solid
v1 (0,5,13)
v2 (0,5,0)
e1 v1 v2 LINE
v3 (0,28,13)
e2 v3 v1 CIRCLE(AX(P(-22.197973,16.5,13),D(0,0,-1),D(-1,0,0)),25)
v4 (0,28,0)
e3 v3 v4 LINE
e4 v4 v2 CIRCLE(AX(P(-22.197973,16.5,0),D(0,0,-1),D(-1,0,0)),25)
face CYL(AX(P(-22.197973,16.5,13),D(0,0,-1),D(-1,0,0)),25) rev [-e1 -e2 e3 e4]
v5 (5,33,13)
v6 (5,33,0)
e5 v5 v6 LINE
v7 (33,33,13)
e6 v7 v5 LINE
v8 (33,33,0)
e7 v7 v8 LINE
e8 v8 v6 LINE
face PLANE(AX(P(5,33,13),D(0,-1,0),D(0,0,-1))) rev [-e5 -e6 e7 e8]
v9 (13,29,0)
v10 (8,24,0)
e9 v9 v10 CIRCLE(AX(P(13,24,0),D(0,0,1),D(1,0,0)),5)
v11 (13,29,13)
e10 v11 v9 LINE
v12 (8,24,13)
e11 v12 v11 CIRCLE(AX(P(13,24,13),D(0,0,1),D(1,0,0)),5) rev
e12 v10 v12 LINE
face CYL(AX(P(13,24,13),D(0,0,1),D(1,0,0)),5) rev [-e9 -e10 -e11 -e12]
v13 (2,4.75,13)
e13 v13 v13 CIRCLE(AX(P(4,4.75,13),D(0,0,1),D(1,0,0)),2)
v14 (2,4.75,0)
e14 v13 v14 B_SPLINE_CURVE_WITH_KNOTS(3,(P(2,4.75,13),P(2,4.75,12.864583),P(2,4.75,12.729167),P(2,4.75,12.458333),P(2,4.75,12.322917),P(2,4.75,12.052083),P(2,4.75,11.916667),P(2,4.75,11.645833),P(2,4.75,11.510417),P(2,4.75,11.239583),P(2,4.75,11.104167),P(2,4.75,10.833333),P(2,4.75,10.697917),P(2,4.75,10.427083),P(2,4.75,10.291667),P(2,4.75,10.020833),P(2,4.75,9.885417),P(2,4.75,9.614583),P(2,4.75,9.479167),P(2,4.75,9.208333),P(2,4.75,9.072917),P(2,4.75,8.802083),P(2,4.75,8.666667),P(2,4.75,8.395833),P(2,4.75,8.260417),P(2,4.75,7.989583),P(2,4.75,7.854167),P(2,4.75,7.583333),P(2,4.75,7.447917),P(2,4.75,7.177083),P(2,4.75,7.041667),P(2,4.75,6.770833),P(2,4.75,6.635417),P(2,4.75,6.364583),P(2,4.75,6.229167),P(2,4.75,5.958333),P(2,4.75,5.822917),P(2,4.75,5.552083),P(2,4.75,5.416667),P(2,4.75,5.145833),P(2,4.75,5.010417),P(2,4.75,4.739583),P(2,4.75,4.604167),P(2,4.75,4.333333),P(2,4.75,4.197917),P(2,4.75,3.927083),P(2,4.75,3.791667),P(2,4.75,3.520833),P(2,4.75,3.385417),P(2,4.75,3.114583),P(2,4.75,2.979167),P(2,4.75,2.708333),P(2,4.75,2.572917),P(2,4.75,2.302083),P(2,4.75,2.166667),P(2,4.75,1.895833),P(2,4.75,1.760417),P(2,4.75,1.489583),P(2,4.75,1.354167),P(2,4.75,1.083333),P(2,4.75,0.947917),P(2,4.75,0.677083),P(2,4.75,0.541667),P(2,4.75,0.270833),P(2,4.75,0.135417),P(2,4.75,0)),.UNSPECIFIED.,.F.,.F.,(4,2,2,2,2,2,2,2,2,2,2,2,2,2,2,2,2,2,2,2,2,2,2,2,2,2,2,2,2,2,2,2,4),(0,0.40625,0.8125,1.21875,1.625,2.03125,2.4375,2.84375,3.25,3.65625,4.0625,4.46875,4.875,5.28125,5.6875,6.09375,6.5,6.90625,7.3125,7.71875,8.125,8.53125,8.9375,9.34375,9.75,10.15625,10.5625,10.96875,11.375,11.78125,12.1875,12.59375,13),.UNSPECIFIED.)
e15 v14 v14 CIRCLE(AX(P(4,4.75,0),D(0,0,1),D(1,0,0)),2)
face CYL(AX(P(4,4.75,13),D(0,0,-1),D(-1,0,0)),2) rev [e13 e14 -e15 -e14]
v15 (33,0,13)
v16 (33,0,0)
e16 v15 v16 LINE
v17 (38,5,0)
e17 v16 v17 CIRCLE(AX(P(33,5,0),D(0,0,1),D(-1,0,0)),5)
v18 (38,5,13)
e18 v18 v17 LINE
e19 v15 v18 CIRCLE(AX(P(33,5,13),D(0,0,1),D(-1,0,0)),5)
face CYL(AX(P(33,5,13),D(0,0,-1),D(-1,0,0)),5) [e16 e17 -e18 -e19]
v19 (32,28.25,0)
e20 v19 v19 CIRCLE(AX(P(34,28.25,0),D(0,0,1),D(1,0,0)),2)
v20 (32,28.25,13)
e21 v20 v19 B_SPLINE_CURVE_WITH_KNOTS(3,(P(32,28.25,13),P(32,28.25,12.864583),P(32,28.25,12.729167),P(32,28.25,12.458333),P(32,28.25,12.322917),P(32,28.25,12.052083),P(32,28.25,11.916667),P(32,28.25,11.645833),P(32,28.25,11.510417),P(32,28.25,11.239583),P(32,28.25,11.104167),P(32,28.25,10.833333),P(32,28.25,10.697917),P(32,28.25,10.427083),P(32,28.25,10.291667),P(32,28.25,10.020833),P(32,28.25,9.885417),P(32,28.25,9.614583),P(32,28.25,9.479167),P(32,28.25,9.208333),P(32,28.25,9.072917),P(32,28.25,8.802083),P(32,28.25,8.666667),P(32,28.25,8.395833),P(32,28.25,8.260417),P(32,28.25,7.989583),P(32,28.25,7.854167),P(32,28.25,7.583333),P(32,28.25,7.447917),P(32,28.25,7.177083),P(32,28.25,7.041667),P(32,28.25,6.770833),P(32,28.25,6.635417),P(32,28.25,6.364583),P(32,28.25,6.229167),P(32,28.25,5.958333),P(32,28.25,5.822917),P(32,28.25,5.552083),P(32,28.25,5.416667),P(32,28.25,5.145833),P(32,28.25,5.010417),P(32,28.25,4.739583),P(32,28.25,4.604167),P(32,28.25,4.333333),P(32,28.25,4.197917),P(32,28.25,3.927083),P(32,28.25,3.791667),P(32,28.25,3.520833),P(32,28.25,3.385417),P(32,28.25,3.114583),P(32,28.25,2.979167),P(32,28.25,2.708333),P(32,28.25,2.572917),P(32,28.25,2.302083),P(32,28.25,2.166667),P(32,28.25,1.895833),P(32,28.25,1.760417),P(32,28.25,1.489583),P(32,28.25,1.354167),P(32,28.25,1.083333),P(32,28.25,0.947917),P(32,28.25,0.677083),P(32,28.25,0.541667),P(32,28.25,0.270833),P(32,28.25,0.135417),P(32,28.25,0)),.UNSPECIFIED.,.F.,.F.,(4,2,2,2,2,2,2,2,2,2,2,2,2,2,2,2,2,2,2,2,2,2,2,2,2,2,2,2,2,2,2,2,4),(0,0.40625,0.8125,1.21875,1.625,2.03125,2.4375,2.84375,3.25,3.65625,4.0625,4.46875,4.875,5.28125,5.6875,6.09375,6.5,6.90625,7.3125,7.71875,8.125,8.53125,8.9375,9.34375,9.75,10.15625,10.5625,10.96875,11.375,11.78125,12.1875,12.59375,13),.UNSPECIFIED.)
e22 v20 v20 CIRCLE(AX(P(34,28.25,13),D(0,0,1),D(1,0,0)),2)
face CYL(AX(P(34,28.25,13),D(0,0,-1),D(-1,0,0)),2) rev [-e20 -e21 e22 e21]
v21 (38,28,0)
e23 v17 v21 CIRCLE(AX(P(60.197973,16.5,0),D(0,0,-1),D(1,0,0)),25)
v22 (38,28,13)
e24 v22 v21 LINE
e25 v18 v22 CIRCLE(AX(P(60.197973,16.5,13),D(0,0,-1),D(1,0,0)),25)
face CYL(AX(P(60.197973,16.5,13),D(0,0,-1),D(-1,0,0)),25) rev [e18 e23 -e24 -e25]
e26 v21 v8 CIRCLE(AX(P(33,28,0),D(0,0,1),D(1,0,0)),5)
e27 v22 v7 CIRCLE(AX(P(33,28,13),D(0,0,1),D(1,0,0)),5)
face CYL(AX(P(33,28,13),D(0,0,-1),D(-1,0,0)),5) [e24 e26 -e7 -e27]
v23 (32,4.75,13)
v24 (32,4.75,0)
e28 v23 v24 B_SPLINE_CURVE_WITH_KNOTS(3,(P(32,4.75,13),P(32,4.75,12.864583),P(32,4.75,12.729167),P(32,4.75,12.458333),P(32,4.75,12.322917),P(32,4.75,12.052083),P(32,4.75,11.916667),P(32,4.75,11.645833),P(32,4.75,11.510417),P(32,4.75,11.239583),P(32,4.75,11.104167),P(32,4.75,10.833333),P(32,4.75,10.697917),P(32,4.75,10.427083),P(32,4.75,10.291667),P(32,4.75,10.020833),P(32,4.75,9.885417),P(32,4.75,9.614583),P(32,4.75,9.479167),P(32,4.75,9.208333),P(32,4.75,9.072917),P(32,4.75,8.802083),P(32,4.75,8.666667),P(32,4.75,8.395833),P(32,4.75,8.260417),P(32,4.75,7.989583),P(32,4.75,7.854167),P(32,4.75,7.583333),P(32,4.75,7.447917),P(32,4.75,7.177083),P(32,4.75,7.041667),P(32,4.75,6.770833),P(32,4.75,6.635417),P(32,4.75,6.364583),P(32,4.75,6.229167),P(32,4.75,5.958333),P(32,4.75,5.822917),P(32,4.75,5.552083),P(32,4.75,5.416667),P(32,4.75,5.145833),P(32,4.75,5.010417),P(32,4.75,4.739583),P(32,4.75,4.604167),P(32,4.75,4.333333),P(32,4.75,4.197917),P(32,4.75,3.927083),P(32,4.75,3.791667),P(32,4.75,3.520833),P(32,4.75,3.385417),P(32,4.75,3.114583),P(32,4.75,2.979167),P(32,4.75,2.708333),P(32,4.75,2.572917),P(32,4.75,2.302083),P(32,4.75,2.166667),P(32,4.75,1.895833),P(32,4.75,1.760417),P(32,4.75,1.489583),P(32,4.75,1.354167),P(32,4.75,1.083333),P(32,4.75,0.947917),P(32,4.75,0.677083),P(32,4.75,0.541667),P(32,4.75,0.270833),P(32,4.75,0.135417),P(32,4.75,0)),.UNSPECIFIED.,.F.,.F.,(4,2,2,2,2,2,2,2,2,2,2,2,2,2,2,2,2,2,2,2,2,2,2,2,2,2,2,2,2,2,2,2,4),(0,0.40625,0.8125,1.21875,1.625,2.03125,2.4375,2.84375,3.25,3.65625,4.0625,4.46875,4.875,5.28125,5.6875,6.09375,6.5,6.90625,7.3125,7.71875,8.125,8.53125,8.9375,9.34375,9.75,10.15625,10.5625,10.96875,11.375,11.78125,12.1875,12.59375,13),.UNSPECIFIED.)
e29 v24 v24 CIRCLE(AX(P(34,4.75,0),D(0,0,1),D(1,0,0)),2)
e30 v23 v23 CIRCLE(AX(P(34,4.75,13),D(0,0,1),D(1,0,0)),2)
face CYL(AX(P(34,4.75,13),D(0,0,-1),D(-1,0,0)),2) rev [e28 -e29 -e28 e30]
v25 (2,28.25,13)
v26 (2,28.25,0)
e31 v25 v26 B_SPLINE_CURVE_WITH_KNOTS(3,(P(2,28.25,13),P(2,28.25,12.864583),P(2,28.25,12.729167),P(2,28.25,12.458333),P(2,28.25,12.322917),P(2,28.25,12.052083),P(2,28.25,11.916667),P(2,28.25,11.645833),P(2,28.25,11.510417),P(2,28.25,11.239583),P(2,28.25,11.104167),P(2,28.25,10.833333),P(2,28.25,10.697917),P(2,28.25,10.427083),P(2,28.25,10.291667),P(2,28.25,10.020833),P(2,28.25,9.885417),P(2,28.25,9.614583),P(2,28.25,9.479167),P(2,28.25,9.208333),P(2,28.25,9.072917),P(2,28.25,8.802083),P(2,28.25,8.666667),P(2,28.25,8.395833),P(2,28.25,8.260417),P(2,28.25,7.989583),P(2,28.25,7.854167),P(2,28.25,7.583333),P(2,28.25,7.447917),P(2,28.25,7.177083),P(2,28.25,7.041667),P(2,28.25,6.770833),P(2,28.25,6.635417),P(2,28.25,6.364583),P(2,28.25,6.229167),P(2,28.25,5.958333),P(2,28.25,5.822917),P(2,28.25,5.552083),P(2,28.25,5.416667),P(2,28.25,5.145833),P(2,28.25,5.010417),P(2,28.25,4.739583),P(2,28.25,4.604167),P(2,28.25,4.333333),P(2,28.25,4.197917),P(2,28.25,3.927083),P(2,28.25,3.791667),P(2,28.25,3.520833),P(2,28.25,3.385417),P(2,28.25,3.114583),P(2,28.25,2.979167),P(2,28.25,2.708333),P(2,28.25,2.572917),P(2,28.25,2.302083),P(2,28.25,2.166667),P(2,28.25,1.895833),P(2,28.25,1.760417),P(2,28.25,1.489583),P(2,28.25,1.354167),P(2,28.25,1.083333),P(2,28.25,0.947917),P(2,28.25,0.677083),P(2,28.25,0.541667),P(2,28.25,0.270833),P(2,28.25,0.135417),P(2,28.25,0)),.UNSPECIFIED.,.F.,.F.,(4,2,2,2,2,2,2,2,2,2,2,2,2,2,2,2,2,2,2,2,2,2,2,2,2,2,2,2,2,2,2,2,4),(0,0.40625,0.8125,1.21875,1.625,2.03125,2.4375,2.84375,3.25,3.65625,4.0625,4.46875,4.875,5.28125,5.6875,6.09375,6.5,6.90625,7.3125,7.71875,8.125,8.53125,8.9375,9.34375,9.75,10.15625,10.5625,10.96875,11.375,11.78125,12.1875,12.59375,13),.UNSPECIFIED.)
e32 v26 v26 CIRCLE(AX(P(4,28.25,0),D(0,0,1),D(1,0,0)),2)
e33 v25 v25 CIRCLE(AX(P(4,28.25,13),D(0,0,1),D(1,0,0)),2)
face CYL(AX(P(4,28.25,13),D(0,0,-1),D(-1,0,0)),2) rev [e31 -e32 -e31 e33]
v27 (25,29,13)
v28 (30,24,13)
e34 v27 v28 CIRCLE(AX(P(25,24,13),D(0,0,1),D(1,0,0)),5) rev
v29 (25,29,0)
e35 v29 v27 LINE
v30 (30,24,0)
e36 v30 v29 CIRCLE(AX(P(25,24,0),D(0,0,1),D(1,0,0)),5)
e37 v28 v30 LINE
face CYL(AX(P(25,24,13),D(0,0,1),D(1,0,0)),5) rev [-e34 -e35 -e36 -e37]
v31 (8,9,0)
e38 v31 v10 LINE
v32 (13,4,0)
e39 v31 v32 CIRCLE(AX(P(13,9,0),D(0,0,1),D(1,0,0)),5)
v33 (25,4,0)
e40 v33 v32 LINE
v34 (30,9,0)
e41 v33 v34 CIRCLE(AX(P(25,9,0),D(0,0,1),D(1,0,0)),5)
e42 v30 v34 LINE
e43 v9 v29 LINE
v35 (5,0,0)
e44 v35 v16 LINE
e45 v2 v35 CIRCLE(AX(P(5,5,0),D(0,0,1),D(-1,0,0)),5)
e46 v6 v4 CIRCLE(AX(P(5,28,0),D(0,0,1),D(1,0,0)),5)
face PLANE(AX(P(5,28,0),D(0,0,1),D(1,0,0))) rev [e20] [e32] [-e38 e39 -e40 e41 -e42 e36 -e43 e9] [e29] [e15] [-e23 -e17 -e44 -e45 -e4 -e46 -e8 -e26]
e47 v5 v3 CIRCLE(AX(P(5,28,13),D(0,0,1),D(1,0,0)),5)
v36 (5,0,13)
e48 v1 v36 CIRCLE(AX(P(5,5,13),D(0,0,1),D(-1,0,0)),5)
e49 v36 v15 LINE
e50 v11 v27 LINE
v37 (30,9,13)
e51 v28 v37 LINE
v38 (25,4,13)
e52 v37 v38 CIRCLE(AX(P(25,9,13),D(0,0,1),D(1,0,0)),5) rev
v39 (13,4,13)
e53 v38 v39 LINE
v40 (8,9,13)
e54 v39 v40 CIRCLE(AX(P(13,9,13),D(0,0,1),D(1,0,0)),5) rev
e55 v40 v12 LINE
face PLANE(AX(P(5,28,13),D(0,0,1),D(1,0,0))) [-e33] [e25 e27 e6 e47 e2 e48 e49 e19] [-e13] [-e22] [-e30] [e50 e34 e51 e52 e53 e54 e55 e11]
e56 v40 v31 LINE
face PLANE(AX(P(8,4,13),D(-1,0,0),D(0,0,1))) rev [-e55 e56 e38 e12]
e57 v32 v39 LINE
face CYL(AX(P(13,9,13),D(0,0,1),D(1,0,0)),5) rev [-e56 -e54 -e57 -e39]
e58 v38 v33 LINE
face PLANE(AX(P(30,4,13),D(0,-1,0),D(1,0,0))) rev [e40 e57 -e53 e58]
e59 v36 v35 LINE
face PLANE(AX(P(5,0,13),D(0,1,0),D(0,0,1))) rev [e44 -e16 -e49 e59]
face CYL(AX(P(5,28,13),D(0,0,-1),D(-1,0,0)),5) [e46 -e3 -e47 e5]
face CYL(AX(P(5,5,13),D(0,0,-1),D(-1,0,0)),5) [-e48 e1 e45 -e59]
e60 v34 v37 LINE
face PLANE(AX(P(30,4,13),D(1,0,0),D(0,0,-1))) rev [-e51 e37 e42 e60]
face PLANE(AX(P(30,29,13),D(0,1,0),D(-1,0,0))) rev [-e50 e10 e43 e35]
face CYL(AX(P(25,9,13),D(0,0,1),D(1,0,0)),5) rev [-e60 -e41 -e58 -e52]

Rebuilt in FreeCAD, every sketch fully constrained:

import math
import FreeCAD as App
import Part
import Sketcher
from FreeCAD import Vector


def edges_at(feature, points):
    """Names of the edges that pass closest to the given points."""
    edges = feature.Shape.Edges
    near = lambda p: min(range(len(edges)), key=lambda i: edges[i].distToShape(Part.Vertex(*p))[0])
    return sorted({f"Edge{near(p) + 1}" for p in points})

doc = App.newDocument("Part")
body = doc.addObject("PartDesign::Body", "Body")

# Sketch on XY plane
sketch1 = doc.addObject("Sketcher::SketchObject", "Sketch")
body.addObject(sketch1)
sketch1.AttachmentSupport = (doc.XY_Plane, [""])
sketch1.MapMode = "FlatFace"
sketch1.addGeometry([
    Part.LineSegment(Vector(5, 0, 0), Vector(33, 0, 0)),  # 0
    Part.ArcOfCircle(Part.Circle(Vector(33, 5, 0), Vector(0, 0, 1), 5), math.radians(-90), math.radians(0)),  # 1
    Part.ArcOfCircle(Part.Circle(Vector(60.2, 16.5, 0), Vector(0, 0, 1), 25), math.radians(153), math.radians(207)),  # 2
    Part.ArcOfCircle(Part.Circle(Vector(33, 28, 0), Vector(0, 0, 1), 5), math.radians(0), math.radians(90)),  # 3
    Part.LineSegment(Vector(33, 33, 0), Vector(5, 33, 0)),  # 4
    Part.ArcOfCircle(Part.Circle(Vector(5, 28, 0), Vector(0, 0, 1), 5), math.radians(90), math.radians(180)),  # 5
    Part.ArcOfCircle(Part.Circle(Vector(-22.2, 16.5, 0), Vector(0, 0, 1), 25), math.radians(-27), math.radians(27)),  # 6
    Part.ArcOfCircle(Part.Circle(Vector(5, 5, 0), Vector(0, 0, 1), 5), math.radians(180), math.radians(270)),  # 7
    Part.Circle(Vector(4, 4.8, 0), Vector(0, 0, 1), 2),  # 8
    Part.Circle(Vector(34, 4.8, 0), Vector(0, 0, 1), 2),  # 9
    Part.Circle(Vector(4, 28.2, 0), Vector(0, 0, 1), 2),  # 10
    Part.Circle(Vector(34, 28.2, 0), Vector(0, 0, 1), 2),  # 11
], False)
sketch1.addConstraint([
    Sketcher.Constraint("Tangent", 0, 2, 1, 1),
    Sketcher.Constraint("Coincident", 1, 2, 2, 2),
    Sketcher.Constraint("Coincident", 2, 1, 3, 1),
    Sketcher.Constraint("Tangent", 3, 2, 4, 1),
    Sketcher.Constraint("Tangent", 4, 2, 5, 1),
    Sketcher.Constraint("Coincident", 5, 2, 6, 2),
    Sketcher.Constraint("Coincident", 6, 1, 7, 1),
    Sketcher.Constraint("Tangent", 7, 2, 0, 1),
    Sketcher.Constraint("Horizontal", 0),
    Sketcher.Constraint("Horizontal", 4),
    Sketcher.Constraint("Equal", 1, 3),
    Sketcher.Constraint("Equal", 3, 5),
    Sketcher.Constraint("Equal", 2, 6),
    Sketcher.Constraint("Equal", 5, 7),
    Sketcher.Constraint("Equal", 8, 9),
    Sketcher.Constraint("Equal", 9, 10),
    Sketcher.Constraint("Equal", 10, 11),
    Sketcher.Constraint("PointOnObject", 0, 2, -1),
    Sketcher.Constraint("PointOnObject", 5, 2, -2),
    Sketcher.Constraint("PointOnObject", 6, 1, -2),
    Sketcher.Constraint("Horizontal", 2, 3, 6, 3),
    Sketcher.Constraint("Horizontal", 8, 3, 9, 3),
    Sketcher.Constraint("Horizontal", 10, 3, 11, 3),
    Sketcher.Constraint("Horizontal", 7, 3, 1, 2),
    Sketcher.Constraint("Horizontal", 5, 3, 2, 1),
    Sketcher.Constraint("Horizontal", 2, 1, 5, 2),
    Sketcher.Constraint("Horizontal", 1, 2, 6, 1),
    Sketcher.Constraint("Vertical", 8, 3, 10, 3),
    Sketcher.Constraint("Vertical", 9, 3, 11, 3),
    Sketcher.Constraint("Diameter", 8, 4.0),
    Sketcher.Constraint("Radius", 1, 5.0),
    Sketcher.Constraint("Radius", 2, 25.0),
    Sketcher.Constraint("DistanceX", 0, 1, 0, 2, 28.0),
    Sketcher.Constraint("DistanceY", -1, 1, 3, 3, 28.0),
    Sketcher.Constraint("DistanceX", -1, 1, 8, 3, 4.0),
    Sketcher.Constraint("DistanceX", -1, 1, 9, 3, 34.0),
    Sketcher.Constraint("DistanceY", 8, 3, 10, 3, 23.5),
    Sketcher.Constraint("DistanceY", -1, 1, 8, 3, 4.75),
])
pad1 = doc.addObject("PartDesign::Pad", "Pad")
body.addObject(pad1)
pad1.Profile = sketch1
pad1.Length = 13

# Sketch on XY plane
sketch2 = doc.addObject("Sketcher::SketchObject", "Sketch001")
body.addObject(sketch2)
sketch2.AttachmentSupport = (doc.XY_Plane, [""])
sketch2.MapMode = "FlatFace"
sketch2.addGeometry([
    Part.LineSegment(Vector(30, 29, 0), Vector(30, 4, 0)),
    Part.LineSegment(Vector(30, 4, 0), Vector(8, 4, 0)),
    Part.LineSegment(Vector(8, 4, 0), Vector(8, 29, 0)),
    Part.LineSegment(Vector(8, 29, 0), Vector(30, 29, 0)),
], False)
sketch2.addConstraint([
    Sketcher.Constraint("Coincident", 0, 2, 1, 1),
    Sketcher.Constraint("Coincident", 1, 2, 2, 1),
    Sketcher.Constraint("Coincident", 2, 2, 3, 1),
    Sketcher.Constraint("Coincident", 3, 2, 0, 1),
    Sketcher.Constraint("Vertical", 0),
    Sketcher.Constraint("Horizontal", 1),
    Sketcher.Constraint("Vertical", 2),
    Sketcher.Constraint("Horizontal", 3),
    Sketcher.Constraint("DistanceX", 1, 2, 1, 1, 22.0),
    Sketcher.Constraint("DistanceY", 0, 2, 0, 1, 25.0),
    Sketcher.Constraint("DistanceX", -1, 1, 0, 2, 30.0),
    Sketcher.Constraint("DistanceY", -1, 1, 0, 2, 4.0),
])
pocket1 = doc.addObject("PartDesign::Pocket", "Pocket")
body.addObject(pocket1)
pocket1.Profile = sketch2
pocket1.Type = "ThroughAll"
pocket1.Reversed = True
doc.recompute()

fillet = doc.addObject("PartDesign::Fillet", "Fillet")
body.addObject(fillet)
fillet.Base = (pocket1, edges_at(pocket1, [
    (8, 4, 6.5),
    (30, 4, 6.5),
    (30, 29, 6.5),
    (8, 29, 6.5),
]))
fillet.Radius = 5

doc.recompute()
